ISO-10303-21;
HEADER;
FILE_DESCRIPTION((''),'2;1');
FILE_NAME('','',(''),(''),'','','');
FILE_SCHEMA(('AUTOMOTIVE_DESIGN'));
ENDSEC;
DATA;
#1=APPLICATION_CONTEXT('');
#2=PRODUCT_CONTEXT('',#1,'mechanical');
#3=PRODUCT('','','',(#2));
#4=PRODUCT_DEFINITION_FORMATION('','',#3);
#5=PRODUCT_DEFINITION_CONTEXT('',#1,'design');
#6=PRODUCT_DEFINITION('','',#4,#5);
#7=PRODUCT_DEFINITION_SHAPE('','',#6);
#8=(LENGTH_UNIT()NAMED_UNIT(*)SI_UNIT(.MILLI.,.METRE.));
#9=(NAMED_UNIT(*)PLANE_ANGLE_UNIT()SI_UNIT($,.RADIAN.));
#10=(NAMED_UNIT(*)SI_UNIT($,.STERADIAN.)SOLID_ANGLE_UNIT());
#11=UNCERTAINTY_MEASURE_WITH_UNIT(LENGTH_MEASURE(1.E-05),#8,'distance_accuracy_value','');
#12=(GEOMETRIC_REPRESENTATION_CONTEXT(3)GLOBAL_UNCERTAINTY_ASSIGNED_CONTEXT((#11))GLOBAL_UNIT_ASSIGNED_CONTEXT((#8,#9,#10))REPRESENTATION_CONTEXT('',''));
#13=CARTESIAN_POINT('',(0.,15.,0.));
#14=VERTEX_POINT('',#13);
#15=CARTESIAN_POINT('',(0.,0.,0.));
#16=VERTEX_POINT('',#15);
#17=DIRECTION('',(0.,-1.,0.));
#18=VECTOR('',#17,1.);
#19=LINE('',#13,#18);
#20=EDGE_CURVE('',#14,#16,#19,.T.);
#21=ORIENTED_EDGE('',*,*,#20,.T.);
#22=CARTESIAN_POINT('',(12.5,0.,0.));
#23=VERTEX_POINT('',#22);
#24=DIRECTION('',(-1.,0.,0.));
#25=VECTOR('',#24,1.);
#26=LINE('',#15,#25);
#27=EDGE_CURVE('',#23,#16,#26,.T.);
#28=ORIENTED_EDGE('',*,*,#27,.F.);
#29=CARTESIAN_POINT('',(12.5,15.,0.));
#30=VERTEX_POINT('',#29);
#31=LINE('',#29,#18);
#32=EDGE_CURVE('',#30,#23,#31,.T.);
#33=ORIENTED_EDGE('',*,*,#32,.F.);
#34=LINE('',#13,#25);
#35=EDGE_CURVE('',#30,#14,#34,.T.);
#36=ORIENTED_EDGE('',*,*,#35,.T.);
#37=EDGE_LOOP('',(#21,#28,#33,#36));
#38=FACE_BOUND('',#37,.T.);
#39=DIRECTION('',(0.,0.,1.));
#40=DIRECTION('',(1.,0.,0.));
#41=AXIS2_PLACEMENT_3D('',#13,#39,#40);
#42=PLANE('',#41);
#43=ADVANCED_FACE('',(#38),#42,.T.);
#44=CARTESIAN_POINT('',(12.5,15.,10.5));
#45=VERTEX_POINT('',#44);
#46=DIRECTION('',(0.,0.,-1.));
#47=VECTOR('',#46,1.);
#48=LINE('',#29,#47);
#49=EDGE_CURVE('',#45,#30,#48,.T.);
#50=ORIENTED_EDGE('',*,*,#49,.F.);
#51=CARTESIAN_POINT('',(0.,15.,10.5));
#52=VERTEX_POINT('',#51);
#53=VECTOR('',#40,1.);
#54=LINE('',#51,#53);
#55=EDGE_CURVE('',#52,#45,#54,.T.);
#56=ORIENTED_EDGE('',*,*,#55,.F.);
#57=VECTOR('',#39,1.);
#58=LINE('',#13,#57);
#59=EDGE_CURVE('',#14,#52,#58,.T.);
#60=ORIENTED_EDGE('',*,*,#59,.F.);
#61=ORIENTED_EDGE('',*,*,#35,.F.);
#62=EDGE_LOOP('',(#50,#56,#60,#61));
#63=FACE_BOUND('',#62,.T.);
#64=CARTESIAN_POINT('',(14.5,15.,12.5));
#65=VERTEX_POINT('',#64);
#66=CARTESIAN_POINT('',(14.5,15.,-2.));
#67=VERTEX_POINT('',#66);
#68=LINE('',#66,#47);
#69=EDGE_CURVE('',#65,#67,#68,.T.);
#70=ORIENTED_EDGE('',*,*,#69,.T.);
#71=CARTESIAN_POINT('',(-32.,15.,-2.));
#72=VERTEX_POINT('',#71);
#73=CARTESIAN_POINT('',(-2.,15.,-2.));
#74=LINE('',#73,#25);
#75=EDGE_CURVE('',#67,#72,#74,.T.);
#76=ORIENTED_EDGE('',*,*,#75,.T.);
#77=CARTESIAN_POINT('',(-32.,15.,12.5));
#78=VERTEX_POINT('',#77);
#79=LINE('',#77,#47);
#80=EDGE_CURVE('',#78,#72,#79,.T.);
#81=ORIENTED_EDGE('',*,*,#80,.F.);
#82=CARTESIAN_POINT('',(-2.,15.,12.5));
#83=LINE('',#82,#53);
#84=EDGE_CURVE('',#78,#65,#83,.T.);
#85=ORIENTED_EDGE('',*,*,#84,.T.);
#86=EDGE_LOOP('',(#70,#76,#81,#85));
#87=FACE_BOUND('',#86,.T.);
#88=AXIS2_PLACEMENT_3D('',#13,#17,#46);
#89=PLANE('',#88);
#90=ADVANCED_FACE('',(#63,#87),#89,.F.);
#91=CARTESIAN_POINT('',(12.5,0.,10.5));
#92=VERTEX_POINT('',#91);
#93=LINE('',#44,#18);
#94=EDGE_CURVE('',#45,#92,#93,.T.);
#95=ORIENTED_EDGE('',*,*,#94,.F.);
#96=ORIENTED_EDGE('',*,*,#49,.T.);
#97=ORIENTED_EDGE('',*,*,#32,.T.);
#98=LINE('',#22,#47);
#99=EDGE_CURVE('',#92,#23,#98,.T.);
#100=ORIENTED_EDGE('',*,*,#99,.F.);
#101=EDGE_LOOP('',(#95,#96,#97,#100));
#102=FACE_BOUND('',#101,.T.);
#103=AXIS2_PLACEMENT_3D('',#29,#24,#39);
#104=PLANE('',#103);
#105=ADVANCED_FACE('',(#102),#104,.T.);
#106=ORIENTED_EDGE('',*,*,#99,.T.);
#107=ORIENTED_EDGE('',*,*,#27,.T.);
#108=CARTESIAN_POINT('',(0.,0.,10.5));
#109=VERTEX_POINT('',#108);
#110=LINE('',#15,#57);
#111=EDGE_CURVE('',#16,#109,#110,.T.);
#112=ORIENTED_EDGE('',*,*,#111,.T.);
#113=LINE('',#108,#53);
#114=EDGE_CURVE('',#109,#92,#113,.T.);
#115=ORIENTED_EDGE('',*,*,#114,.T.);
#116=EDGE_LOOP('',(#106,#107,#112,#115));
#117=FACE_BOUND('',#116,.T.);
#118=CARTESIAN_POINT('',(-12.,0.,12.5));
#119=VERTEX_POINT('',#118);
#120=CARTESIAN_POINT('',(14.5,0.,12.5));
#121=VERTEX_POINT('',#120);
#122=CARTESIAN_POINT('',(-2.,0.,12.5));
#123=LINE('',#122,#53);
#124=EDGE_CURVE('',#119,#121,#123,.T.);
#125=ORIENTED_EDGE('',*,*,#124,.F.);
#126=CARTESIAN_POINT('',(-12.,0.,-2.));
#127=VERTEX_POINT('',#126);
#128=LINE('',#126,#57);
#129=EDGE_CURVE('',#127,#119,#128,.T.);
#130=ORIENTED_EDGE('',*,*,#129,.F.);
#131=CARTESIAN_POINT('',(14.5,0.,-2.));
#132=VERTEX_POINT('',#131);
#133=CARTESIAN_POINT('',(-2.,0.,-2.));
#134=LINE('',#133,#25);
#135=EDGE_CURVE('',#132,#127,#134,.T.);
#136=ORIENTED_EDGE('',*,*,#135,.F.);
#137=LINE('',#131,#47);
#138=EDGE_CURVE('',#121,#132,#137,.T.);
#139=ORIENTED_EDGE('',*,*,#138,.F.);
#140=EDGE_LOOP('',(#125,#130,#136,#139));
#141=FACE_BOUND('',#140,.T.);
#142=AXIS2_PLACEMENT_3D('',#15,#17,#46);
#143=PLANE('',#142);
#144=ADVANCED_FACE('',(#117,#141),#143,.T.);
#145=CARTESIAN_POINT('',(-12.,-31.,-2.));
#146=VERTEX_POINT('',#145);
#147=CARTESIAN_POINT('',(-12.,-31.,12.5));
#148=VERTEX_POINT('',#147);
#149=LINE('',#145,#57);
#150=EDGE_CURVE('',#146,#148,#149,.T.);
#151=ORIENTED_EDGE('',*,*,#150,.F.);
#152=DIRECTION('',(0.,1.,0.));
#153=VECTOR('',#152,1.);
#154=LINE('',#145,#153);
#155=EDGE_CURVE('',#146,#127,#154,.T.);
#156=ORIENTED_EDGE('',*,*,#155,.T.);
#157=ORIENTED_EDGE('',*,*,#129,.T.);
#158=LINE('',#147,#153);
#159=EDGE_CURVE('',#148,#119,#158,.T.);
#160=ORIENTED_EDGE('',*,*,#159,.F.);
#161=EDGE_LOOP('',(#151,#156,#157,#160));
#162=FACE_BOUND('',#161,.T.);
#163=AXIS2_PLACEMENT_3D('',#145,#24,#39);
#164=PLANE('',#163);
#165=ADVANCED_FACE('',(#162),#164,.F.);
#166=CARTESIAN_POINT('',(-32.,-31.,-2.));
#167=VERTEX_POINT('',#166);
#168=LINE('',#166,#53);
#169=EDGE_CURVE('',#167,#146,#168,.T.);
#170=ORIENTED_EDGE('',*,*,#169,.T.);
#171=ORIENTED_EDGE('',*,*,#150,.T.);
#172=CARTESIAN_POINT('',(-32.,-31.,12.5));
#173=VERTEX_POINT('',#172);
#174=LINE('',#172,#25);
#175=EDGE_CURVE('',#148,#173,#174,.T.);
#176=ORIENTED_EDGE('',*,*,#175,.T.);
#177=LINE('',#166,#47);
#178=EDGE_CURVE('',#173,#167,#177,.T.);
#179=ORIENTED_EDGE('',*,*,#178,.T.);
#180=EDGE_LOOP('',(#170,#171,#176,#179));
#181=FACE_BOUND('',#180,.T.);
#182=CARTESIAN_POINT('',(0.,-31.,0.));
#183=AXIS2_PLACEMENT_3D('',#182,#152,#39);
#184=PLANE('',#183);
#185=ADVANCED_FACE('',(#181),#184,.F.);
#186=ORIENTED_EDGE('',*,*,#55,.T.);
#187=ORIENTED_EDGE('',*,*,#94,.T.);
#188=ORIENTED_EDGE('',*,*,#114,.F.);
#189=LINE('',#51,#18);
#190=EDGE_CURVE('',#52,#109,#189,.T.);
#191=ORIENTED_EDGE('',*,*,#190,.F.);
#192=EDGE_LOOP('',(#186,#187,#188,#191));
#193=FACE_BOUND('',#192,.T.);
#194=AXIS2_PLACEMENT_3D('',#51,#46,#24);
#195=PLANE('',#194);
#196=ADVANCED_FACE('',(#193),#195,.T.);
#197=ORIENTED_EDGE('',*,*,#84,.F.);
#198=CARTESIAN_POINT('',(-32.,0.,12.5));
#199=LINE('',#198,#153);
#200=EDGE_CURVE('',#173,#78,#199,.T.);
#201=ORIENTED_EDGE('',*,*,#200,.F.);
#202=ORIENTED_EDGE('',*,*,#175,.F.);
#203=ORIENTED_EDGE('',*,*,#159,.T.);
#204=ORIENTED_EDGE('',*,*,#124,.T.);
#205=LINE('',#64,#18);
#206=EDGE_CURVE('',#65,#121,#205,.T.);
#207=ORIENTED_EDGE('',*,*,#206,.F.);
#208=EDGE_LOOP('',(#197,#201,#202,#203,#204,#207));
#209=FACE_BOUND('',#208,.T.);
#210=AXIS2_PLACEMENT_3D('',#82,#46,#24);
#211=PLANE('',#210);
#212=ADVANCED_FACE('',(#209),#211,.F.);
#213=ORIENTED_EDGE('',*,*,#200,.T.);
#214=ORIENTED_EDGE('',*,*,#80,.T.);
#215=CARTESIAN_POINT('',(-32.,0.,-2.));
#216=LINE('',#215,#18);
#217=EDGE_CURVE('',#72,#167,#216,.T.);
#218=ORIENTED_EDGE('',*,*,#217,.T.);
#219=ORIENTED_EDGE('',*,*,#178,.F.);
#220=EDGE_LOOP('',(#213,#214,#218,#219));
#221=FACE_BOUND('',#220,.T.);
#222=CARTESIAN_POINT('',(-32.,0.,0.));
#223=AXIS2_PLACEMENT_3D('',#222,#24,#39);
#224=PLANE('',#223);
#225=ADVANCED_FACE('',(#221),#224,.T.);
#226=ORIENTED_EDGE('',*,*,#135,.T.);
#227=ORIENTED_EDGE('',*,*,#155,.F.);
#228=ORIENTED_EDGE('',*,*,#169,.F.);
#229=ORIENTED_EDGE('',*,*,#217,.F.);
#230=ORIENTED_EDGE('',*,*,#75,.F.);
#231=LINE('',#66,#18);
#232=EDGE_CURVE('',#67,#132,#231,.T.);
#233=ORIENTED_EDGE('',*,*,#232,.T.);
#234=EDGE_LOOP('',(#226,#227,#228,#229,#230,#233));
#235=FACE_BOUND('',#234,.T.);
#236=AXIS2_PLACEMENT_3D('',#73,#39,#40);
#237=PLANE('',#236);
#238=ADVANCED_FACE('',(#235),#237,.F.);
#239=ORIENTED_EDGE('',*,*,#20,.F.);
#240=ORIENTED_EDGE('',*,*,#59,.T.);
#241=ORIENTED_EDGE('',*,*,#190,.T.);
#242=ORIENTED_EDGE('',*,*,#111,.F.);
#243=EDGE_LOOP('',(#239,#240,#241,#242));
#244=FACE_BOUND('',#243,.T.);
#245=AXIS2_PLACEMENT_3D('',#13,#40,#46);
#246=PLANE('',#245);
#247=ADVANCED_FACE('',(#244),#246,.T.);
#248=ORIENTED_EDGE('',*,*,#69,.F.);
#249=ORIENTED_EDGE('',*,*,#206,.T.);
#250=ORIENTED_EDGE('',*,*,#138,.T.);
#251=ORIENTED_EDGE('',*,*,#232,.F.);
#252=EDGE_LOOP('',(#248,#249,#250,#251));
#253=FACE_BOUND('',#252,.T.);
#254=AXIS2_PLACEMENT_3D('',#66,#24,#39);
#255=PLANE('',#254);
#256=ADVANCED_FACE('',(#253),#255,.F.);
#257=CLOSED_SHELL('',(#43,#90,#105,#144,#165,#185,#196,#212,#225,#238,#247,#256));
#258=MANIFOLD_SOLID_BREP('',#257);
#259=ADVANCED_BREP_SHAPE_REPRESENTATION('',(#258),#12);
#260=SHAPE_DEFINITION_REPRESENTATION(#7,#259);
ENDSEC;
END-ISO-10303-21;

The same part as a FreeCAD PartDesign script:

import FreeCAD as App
import Part
import Sketcher
Q = App.Units.Quantity


def add_polygon(sketch, points):
    """Adds a closed chain of lines whose ends are joined by coincident constraints."""
    first, n = sketch.GeometryCount, len(points)
    for a, b in zip(points, points[1:] + points[:1]):
        sketch.addGeometry(Part.LineSegment(App.Vector(*a, 0), App.Vector(*b, 0)), False)
    for i in range(n):
        sketch.addConstraint(Sketcher.Constraint("Coincident", first + i, 2, first + (i + 1) % n, 1))

doc = App.newDocument("Part")
body = doc.addObject("PartDesign::Body", "Body")

sketch1 = doc.addObject("Sketcher::SketchObject", "Sketch")
body.addObject(sketch1)
sketch1.AttachmentSupport = (doc.XZ_Plane, [""])
sketch1.MapMode = "FlatFace"
add_polygon(sketch1, [(-2, -2), (-2, 12), (14, 12), (14, -2)])
add_polygon(sketch1, [(12, 10), (0, 10), (0, 0), (12, 0)])
sketch1.addConstraint([
    Sketcher.Constraint("Vertical", 0),
    Sketcher.Constraint("Horizontal", 1),
    Sketcher.Constraint("Vertical", 2),
    Sketcher.Constraint("Horizontal", 3),
    Sketcher.Constraint("Horizontal", 4),
    Sketcher.Constraint("Vertical", 5),
    Sketcher.Constraint("Horizontal", 6),
    Sketcher.Constraint("Vertical", 7),
    Sketcher.Constraint("Coincident", 5, 2, -1, 1),
    Sketcher.Constraint("DistanceX", 1, 1, 1, 2, Q("16.5 mm")),
    Sketcher.Constraint("DistanceX", 4, 2, 4, 1, Q("12.5 mm")),
    Sketcher.Constraint("DistanceY", 0, 1, 0, 2, Q("14.5 mm")),
    Sketcher.Constraint("DistanceY", 5, 2, 5, 1, Q("10.5 mm")),
    Sketcher.Constraint("DistanceX", 0, 2, -1, 1, Q("2 mm")),
    Sketcher.Constraint("DistanceY", 2, 2, -1, 1, Q("2 mm")),
])
pad1 = doc.addObject("PartDesign::Pad", "Pad")
body.addObject(pad1)
pad1.Profile = sketch1
pad1.Length = 15
pad1.Reversed = True

sketch2 = doc.addObject("Sketcher::SketchObject", "Sketch001")
body.addObject(sketch2)
sketch2.AttachmentSupport = (doc.YZ_Plane, [""])
sketch2.MapMode = "FlatFace"
sketch2.AttachmentOffset = App.Placement(App.Vector(0, 0, -2), App.Rotation())
add_polygon(sketch2, [(15, -2), (0, -2), (0, 12), (15, 12)])
sketch2.addConstraint([
    Sketcher.Constraint("Horizontal", 0),
    Sketcher.Constraint("Vertical", 1),
    Sketcher.Constraint("Horizontal", 2),
    Sketcher.Constraint("Vertical", 3),
    Sketcher.Constraint("PointOnObject", 0, 2, -2),
    Sketcher.Constraint("DistanceX", 0, 2, 0, 1, Q("15 mm")),
    Sketcher.Constraint("DistanceY", 1, 1, 1, 2, Q("14.5 mm")),
    Sketcher.Constraint("DistanceY", 0, 2, -1, 1, Q("2 mm")),
])
pad2 = doc.addObject("PartDesign::Pad", "Pad001")
body.addObject(pad2)
pad2.Profile = sketch2
pad2.Length = 30
pad2.Reversed = True

sketch3 = doc.addObject("Sketcher::SketchObject", "Sketch002")
body.addObject(sketch3)
sketch3.AttachmentSupport = (doc.XZ_Plane, [""])
sketch3.MapMode = "FlatFace"
add_polygon(sketch3, [(-12, -2), (-12, 12), (-32, 12), (-32, -2)])
sketch3.addConstraint([
    Sketcher.Constraint("Vertical", 0),
    Sketcher.Constraint("Horizontal", 1),
    Sketcher.Constraint("Vertical", 2),
    Sketcher.Constraint("Horizontal", 3),
    Sketcher.Constraint("DistanceX", 1, 2, 1, 1, Q("20 mm")),
    Sketcher.Constraint("DistanceY", 0, 1, 0, 2, Q("14.5 mm")),
    Sketcher.Constraint("DistanceX", 0, 2, -1, 1, Q("12 mm")),
    Sketcher.Constraint("DistanceY", 2, 2, -1, 1, Q("2 mm")),
])
pad3 = doc.addObject("PartDesign::Pad", "Pad002")
body.addObject(pad3)
pad3.Profile = sketch3
pad3.Length = 31

doc.recompute()
